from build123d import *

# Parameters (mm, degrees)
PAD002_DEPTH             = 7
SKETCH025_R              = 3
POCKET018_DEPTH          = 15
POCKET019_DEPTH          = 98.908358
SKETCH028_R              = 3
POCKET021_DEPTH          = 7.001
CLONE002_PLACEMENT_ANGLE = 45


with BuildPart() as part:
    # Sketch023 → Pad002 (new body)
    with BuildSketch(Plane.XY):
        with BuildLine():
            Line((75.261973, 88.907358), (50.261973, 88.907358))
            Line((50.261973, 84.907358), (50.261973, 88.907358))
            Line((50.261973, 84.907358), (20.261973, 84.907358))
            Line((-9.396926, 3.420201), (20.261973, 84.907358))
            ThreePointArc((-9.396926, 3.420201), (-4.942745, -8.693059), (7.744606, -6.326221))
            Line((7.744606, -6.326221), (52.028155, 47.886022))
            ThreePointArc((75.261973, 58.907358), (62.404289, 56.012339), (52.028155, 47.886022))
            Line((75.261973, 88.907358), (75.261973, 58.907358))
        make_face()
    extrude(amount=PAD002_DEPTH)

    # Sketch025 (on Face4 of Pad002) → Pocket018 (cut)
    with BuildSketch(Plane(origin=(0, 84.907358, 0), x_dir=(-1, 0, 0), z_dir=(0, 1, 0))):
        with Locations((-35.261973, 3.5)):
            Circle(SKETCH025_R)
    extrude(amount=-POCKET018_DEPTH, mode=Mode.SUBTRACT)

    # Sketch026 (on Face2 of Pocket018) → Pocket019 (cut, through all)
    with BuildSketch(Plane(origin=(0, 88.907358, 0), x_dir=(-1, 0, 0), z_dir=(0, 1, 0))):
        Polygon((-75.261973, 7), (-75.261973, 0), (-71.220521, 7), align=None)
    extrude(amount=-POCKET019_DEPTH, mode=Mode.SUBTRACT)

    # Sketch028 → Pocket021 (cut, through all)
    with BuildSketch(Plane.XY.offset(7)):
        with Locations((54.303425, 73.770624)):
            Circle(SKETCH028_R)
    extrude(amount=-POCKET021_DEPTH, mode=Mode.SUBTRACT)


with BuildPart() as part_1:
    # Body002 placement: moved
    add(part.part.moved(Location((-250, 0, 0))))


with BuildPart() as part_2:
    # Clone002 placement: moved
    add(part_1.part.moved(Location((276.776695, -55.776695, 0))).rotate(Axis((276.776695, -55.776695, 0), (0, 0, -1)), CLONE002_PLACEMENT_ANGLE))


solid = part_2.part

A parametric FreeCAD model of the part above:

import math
import FreeCAD as App
import Part
import Sketcher
from FreeCAD import Vector
Q = App.Units.Quantity

doc = App.newDocument("Part")
params = doc.addObject("Spreadsheet::Sheet", "Params")
for row, (alias, value) in enumerate([
    ("sketch1_radius", "10 mm"),
    ("sketch1_width", "25 mm"),
    ("sketch1_width2", "30 mm"),
    ("sketch1_height", "4 mm"),
    ("sketch1_length", "70 mm"),
    ("pad1_length", "7 mm"),
    ("sketch2_diameter", "6 mm"),
    ("pocket1_length", "15 mm"),
    ("sketch3_height", "7 mm"),
    ("sketch4_diameter", "6 mm"),
], start=1):
    params.set(f"A{row}", alias)
    params.set(f"B{row}", "=" + value)
    params.setAlias(f"B{row}", alias)

body = doc.addObject("PartDesign::Body", "Body")

# Sketch on XY plane
sketch1 = body.newObject("Sketcher::SketchObject", "Sketch")
sketch1.AttachmentSupport = (doc.getObject("XY_Plane"), [""])
sketch1.MapMode = "FlatFace"
sketch1.addGeometry([
    Part.LineSegment(Vector(75.3, 88.9, 0), Vector(50.3, 88.9, 0)),  # 0
    Part.LineSegment(Vector(50.3, 88.9, 0), Vector(50.3, 84.9, 0)),  # 1
    Part.LineSegment(Vector(50.3, 84.9, 0), Vector(20.3, 84.9, 0)),  # 2
    Part.LineSegment(Vector(20.3, 84.9, 0), Vector(-9.4, 3.4, 0)),  # 3
    Part.ArcOfCircle(Part.Circle(Vector(0, 0, 0), Vector(0, 0, 1), 10), math.radians(160), math.radians(321)),  # 4
    Part.LineSegment(Vector(7.7, -6.3, 0), Vector(52, 47.9, 0)),  # 5
    Part.ArcOfCircle(Part.Circle(Vector(75.3, 28.9, 0), Vector(0, 0, 1), 30), math.radians(90), math.radians(141)),  # 6
    Part.LineSegment(Vector(75.3, 58.9, 0), Vector(75.3, 88.9, 0)),  # 7
], False)
sketch1.addConstraint([
    Sketcher.Constraint("Coincident", 0, 2, 1, 1),
    Sketcher.Constraint("Coincident", 1, 2, 2, 1),
    Sketcher.Constraint("Coincident", 2, 2, 3, 1),
    Sketcher.Constraint("Tangent", 3, 2, 4, 1),
    Sketcher.Constraint("Tangent", 4, 2, 5, 1),
    Sketcher.Constraint("Tangent", 5, 2, 6, 2),
    Sketcher.Constraint("Coincident", 6, 1, 7, 1),
    Sketcher.Constraint("Coincident", 7, 2, 0, 1),
    Sketcher.Constraint("Horizontal", 0),
    Sketcher.Constraint("Vertical", 1),
    Sketcher.Constraint("Horizontal", 2),
    Sketcher.Constraint("Vertical", 7),
    Sketcher.Constraint("Coincident", 4, 3, -1, 1),
    Sketcher.Constraint("Equal", 2, 7),
    Sketcher.Constraint("Radius", 4, Q("10 mm")),
    Sketcher.Constraint("DistanceX", 0, 2, 0, 1, Q("25 mm")),
    Sketcher.Constraint("DistanceX", 2, 2, 2, 1, Q("30 mm")),
    Sketcher.Constraint("DistanceY", 1, 2, 1, 1, Q("4 mm")),
    Sketcher.Constraint("Angle", 3, Q("-110 deg")),
    Sketcher.Constraint("Distance", 5, Q("70 mm")),
    Sketcher.Constraint("Radius", 6, Q("29.999994 mm")),
    Sketcher.Constraint("DistanceX", 3, 2, 2, 2, Q("29.658899 mm")),
])
sketch1.setExpression("Constraints[14]", "Params.sketch1_radius")
sketch1.setExpression("Constraints[15]", "Params.sketch1_width")
sketch1.setExpression("Constraints[16]", "Params.sketch1_width2")
sketch1.setExpression("Constraints[17]", "Params.sketch1_height")
sketch1.setExpression("Constraints[19]", "Params.sketch1_length")
pad1 = body.newObject("PartDesign::Pad", "Pad")
pad1.Profile = sketch1
pad1.setExpression("Length", "Params.pad1_length")

# Sketch on XZ plane
sketch2 = body.newObject("Sketcher::SketchObject", "Sketch001")
sketch2.AttachmentSupport = (doc.getObject("XZ_Plane"), [""])
sketch2.MapMode = "FlatFace"
sketch2.AttachmentOffset = App.Placement(Vector(0, 0, -84.907358), App.Rotation())
sketch2.addGeometry(Part.Circle(Vector(35.3, 3.5, 0), Vector(0, 0, 1), 3), False)
sketch2.addConstraint([
    Sketcher.Constraint("Diameter", 0, Q("6 mm")),
    Sketcher.Constraint("DistanceY", -1, 1, 0, 3, Q("3.5 mm")),
    Sketcher.Constraint("DistanceX", -1, 1, 0, 3, Q("35.261973 mm")),
])
sketch2.setExpression("Constraints[0]", "Params.sketch2_diameter")
pocket1 = body.newObject("PartDesign::Pocket", "Pocket")
pocket1.Profile = sketch2
pocket1.setExpression("Length", "Params.pocket1_length")
pocket1.Reversed = True

# Sketch on XZ plane
sketch3 = body.newObject("Sketcher::SketchObject", "Sketch002")
sketch3.AttachmentSupport = (doc.getObject("XZ_Plane"), [""])
sketch3.MapMode = "FlatFace"
sketch3.AttachmentOffset = App.Placement(Vector(0, 0, -88.907358), App.Rotation())
sketch3.addGeometry([
    Part.LineSegment(Vector(75.3, 7, 0), Vector(75.3, 0, 0)),
    Part.LineSegment(Vector(75.3, 0, 0), Vector(71.2, 7, 0)),
    Part.LineSegment(Vector(71.2, 7, 0), Vector(75.3, 7, 0)),
], False)
sketch3.addConstraint([
    Sketcher.Constraint("Coincident", 0, 2, 1, 1),
    Sketcher.Constraint("Coincident", 1, 2, 2, 1),
    Sketcher.Constraint("Coincident", 2, 2, 0, 1),
    Sketcher.Constraint("Vertical", 0),
    Sketcher.Constraint("Horizontal", 2),
    Sketcher.Constraint("PointOnObject", 0, 2, -1),
    Sketcher.Constraint("DistanceY", 0, 2, 0, 1, Q("7 mm")),
    Sketcher.Constraint("Angle", 1, Q("120.000001 deg")),
    Sketcher.Constraint("DistanceX", -1, 1, 1, 2, Q("71.220521 mm")),
])
sketch3.setExpression("Constraints[6]", "Params.sketch3_height")
pocket2 = body.newObject("PartDesign::Pocket", "Pocket001")
pocket2.Profile = sketch3
pocket2.Type = "ThroughAll"
pocket2.Reversed = True

# Sketch on XY plane
sketch4 = body.newObject("Sketcher::SketchObject", "Sketch003")
sketch4.AttachmentSupport = (doc.getObject("XY_Plane"), [""])
sketch4.MapMode = "FlatFace"
sketch4.AttachmentOffset = App.Placement(Vector(0, 0, 7), App.Rotation())
sketch4.addGeometry(Part.Circle(Vector(54.3, 73.8, 0), Vector(0, 0, 1), 3), False)
sketch4.addConstraint([
    Sketcher.Constraint("Diameter", 0, Q("6 mm")),
    Sketcher.Constraint("DistanceX", -1, 1, 0, 3, Q("54.303425 mm")),
    Sketcher.Constraint("DistanceY", -1, 1, 0, 3, Q("73.770624 mm")),
])
sketch4.setExpression("Constraints[0]", "Params.sketch4_diameter")
pocket3 = body.newObject("PartDesign::Pocket", "Pocket002")
pocket3.Profile = sketch4
pocket3.Type = "ThroughAll"
body2 = doc.addObject("PartDesign::Body", "Body001")
doc.recompute()

body.Placement = App.Placement(Vector(-250, 0, 0), App.Rotation(Vector(0, 0, 1), 0))
boolean = body2.newObject("PartDesign::Boolean", "Boolean")
boolean.Type = "Fuse"
boolean.addObjects([body])
body3 = doc.addObject("PartDesign::Body", "Body002")
doc.recompute()

body2.Placement = App.Placement(Vector(276.776695, -55.776695, 0), App.Rotation(Vector(0, 0, -1), 45))
boolean2 = body3.newObject("PartDesign::Boolean", "Boolean001")
boolean2.Type = "Fuse"
boolean2.addObjects([body2])

doc.recompute()
